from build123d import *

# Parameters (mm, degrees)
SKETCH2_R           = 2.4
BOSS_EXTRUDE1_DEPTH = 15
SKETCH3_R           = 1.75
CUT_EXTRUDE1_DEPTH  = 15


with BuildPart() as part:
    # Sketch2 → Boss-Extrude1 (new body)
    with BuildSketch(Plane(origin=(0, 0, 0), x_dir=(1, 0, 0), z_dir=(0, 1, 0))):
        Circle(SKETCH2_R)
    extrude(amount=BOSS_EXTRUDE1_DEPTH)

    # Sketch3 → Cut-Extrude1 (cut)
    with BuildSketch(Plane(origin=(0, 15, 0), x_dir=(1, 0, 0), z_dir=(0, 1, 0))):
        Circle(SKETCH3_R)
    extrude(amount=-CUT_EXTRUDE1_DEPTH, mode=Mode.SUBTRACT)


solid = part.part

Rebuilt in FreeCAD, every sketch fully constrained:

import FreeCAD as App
import Part
import Sketcher

V = App.Vector
Q = App.Units.Quantity

doc = App.newDocument("Part")
body = doc.addObject("PartDesign::Body", "Body")

# Sketch on XZ plane
sketch1 = body.newObject("Sketcher::SketchObject", "Sketch")
sketch1.AttachmentSupport = (doc.getObject("XZ_Plane"), [""])
sketch1.MapMode = "FlatFace"
sketch1.addGeometry(Part.Circle(V(0, 0, 0), V(0, 0, 1), 2.4), False)
sketch1.addConstraint(Sketcher.Constraint("Coincident", 0, 3, -1, 1))
sketch1.addConstraint(Sketcher.Constraint("Diameter", 0, Q("4.8 mm")))
pad1 = body.newObject("PartDesign::Pad", "Pad")
pad1.Profile = sketch1
pad1.Length = 15
pad1.Reversed = True

# Sketch on XZ plane
sketch2 = body.newObject("Sketcher::SketchObject", "Sketch001")
sketch2.AttachmentSupport = (doc.getObject("XZ_Plane"), [""])
sketch2.MapMode = "FlatFace"
sketch2.AttachmentOffset = App.Placement(V(0, 0, -15), App.Rotation())
sketch2.addGeometry(Part.Circle(V(0, 0, 0), V(0, 0, 1), 1.8), False)
sketch2.addConstraint(Sketcher.Constraint("Coincident", 0, 3, -1, 1))
sketch2.addConstraint(Sketcher.Constraint("Diameter", 0, Q("3.5 mm")))
pocket1 = body.newObject("PartDesign::Pocket", "Pocket")
pocket1.Profile = sketch2
pocket1.Length = 15
pocket1.Reversed = True

doc.recompute()
